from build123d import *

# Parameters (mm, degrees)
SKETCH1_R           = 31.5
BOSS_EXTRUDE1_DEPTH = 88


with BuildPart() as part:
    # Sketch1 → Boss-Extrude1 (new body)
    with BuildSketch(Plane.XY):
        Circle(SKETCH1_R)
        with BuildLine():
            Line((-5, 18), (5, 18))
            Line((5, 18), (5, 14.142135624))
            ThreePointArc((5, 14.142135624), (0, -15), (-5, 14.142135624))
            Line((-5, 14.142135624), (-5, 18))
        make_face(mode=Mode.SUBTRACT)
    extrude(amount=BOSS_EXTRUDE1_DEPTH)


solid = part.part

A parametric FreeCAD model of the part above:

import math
import FreeCAD as App
import Part
import Sketcher
Q = App.Units.Quantity

doc = App.newDocument("Part")
params = doc.addObject("Spreadsheet::Sheet", "Params")
for row, (alias, value) in enumerate([
    ("sketch1_diameter", "63 mm"),
    ("sketch1_radius", "15 mm"),
    ("sketch1_width", "10 mm"),
    ("pad1_length", "88 mm"),
], start=1):
    params.set(f"A{row}", alias)
    params.set(f"B{row}", "=" + value)
    params.setAlias(f"B{row}", alias)

body = doc.addObject("PartDesign::Body", "Body")

# Sketch on XY plane
sketch1 = doc.addObject("Sketcher::SketchObject", "Sketch")
body.addObject(sketch1)
sketch1.AttachmentSupport = (doc.XY_Plane, [""])
sketch1.MapMode = "FlatFace"
sketch1.addGeometry(Part.Circle(App.Vector(0, 0, 0), App.Vector(0, 0, 1), 31.5), False)
sketch1.addGeometry(Part.LineSegment(App.Vector(-5, 14.142136, 0), App.Vector(-5, 18, 0)), False)
sketch1.addGeometry(Part.LineSegment(App.Vector(-5, 18, 0), App.Vector(5, 18, 0)), False)
sketch1.addGeometry(Part.LineSegment(App.Vector(5, 18, 0), App.Vector(5, 14.142136, 0)), False)
sketch1.addGeometry(Part.ArcOfCircle(Part.Circle(App.Vector(0, 0, 0), App.Vector(0, 0, 1), 15), math.radians(109.471221), math.radians(430.528779)), False)
sketch1.addConstraint(Sketcher.Constraint("Coincident", 1, 2, 2, 1))
sketch1.addConstraint(Sketcher.Constraint("Coincident", 2, 2, 3, 1))
sketch1.addConstraint(Sketcher.Constraint("Coincident", 3, 2, 4, 2))
sketch1.addConstraint(Sketcher.Constraint("Coincident", 4, 1, 1, 1))
sketch1.addConstraint(Sketcher.Constraint("Vertical", 1))
sketch1.addConstraint(Sketcher.Constraint("Horizontal", 2))
sketch1.addConstraint(Sketcher.Constraint("Vertical", 3))
sketch1.addConstraint(Sketcher.Constraint("Coincident", 0, 3, -1, 1))
sketch1.addConstraint(Sketcher.Constraint("Coincident", 4, 3, -1, 1))
sketch1.addConstraint(Sketcher.Constraint("Horizontal", 3, 2, 4, 1))
sketch1.addConstraint(Sketcher.Constraint("Diameter", 0, Q("63 mm")))
sketch1.addConstraint(Sketcher.Constraint("Radius", 4, Q("15 mm")))
sketch1.addConstraint(Sketcher.Constraint("DistanceX", 2, 1, 2, 2, Q("10 mm")))
sketch1.addConstraint(Sketcher.Constraint("DistanceY", -1, 1, 1, 2, Q("18 mm")))
sketch1.setExpression("Constraints[10]", "Params.sketch1_diameter")
sketch1.setExpression("Constraints[11]", "Params.sketch1_radius")
sketch1.setExpression("Constraints[12]", "Params.sketch1_width")
pad1 = doc.addObject("PartDesign::Pad", "Pad")
body.addObject(pad1)
pad1.Profile = sketch1
pad1.setExpression("Length", "Params.pad1_length")

doc.recompute()
